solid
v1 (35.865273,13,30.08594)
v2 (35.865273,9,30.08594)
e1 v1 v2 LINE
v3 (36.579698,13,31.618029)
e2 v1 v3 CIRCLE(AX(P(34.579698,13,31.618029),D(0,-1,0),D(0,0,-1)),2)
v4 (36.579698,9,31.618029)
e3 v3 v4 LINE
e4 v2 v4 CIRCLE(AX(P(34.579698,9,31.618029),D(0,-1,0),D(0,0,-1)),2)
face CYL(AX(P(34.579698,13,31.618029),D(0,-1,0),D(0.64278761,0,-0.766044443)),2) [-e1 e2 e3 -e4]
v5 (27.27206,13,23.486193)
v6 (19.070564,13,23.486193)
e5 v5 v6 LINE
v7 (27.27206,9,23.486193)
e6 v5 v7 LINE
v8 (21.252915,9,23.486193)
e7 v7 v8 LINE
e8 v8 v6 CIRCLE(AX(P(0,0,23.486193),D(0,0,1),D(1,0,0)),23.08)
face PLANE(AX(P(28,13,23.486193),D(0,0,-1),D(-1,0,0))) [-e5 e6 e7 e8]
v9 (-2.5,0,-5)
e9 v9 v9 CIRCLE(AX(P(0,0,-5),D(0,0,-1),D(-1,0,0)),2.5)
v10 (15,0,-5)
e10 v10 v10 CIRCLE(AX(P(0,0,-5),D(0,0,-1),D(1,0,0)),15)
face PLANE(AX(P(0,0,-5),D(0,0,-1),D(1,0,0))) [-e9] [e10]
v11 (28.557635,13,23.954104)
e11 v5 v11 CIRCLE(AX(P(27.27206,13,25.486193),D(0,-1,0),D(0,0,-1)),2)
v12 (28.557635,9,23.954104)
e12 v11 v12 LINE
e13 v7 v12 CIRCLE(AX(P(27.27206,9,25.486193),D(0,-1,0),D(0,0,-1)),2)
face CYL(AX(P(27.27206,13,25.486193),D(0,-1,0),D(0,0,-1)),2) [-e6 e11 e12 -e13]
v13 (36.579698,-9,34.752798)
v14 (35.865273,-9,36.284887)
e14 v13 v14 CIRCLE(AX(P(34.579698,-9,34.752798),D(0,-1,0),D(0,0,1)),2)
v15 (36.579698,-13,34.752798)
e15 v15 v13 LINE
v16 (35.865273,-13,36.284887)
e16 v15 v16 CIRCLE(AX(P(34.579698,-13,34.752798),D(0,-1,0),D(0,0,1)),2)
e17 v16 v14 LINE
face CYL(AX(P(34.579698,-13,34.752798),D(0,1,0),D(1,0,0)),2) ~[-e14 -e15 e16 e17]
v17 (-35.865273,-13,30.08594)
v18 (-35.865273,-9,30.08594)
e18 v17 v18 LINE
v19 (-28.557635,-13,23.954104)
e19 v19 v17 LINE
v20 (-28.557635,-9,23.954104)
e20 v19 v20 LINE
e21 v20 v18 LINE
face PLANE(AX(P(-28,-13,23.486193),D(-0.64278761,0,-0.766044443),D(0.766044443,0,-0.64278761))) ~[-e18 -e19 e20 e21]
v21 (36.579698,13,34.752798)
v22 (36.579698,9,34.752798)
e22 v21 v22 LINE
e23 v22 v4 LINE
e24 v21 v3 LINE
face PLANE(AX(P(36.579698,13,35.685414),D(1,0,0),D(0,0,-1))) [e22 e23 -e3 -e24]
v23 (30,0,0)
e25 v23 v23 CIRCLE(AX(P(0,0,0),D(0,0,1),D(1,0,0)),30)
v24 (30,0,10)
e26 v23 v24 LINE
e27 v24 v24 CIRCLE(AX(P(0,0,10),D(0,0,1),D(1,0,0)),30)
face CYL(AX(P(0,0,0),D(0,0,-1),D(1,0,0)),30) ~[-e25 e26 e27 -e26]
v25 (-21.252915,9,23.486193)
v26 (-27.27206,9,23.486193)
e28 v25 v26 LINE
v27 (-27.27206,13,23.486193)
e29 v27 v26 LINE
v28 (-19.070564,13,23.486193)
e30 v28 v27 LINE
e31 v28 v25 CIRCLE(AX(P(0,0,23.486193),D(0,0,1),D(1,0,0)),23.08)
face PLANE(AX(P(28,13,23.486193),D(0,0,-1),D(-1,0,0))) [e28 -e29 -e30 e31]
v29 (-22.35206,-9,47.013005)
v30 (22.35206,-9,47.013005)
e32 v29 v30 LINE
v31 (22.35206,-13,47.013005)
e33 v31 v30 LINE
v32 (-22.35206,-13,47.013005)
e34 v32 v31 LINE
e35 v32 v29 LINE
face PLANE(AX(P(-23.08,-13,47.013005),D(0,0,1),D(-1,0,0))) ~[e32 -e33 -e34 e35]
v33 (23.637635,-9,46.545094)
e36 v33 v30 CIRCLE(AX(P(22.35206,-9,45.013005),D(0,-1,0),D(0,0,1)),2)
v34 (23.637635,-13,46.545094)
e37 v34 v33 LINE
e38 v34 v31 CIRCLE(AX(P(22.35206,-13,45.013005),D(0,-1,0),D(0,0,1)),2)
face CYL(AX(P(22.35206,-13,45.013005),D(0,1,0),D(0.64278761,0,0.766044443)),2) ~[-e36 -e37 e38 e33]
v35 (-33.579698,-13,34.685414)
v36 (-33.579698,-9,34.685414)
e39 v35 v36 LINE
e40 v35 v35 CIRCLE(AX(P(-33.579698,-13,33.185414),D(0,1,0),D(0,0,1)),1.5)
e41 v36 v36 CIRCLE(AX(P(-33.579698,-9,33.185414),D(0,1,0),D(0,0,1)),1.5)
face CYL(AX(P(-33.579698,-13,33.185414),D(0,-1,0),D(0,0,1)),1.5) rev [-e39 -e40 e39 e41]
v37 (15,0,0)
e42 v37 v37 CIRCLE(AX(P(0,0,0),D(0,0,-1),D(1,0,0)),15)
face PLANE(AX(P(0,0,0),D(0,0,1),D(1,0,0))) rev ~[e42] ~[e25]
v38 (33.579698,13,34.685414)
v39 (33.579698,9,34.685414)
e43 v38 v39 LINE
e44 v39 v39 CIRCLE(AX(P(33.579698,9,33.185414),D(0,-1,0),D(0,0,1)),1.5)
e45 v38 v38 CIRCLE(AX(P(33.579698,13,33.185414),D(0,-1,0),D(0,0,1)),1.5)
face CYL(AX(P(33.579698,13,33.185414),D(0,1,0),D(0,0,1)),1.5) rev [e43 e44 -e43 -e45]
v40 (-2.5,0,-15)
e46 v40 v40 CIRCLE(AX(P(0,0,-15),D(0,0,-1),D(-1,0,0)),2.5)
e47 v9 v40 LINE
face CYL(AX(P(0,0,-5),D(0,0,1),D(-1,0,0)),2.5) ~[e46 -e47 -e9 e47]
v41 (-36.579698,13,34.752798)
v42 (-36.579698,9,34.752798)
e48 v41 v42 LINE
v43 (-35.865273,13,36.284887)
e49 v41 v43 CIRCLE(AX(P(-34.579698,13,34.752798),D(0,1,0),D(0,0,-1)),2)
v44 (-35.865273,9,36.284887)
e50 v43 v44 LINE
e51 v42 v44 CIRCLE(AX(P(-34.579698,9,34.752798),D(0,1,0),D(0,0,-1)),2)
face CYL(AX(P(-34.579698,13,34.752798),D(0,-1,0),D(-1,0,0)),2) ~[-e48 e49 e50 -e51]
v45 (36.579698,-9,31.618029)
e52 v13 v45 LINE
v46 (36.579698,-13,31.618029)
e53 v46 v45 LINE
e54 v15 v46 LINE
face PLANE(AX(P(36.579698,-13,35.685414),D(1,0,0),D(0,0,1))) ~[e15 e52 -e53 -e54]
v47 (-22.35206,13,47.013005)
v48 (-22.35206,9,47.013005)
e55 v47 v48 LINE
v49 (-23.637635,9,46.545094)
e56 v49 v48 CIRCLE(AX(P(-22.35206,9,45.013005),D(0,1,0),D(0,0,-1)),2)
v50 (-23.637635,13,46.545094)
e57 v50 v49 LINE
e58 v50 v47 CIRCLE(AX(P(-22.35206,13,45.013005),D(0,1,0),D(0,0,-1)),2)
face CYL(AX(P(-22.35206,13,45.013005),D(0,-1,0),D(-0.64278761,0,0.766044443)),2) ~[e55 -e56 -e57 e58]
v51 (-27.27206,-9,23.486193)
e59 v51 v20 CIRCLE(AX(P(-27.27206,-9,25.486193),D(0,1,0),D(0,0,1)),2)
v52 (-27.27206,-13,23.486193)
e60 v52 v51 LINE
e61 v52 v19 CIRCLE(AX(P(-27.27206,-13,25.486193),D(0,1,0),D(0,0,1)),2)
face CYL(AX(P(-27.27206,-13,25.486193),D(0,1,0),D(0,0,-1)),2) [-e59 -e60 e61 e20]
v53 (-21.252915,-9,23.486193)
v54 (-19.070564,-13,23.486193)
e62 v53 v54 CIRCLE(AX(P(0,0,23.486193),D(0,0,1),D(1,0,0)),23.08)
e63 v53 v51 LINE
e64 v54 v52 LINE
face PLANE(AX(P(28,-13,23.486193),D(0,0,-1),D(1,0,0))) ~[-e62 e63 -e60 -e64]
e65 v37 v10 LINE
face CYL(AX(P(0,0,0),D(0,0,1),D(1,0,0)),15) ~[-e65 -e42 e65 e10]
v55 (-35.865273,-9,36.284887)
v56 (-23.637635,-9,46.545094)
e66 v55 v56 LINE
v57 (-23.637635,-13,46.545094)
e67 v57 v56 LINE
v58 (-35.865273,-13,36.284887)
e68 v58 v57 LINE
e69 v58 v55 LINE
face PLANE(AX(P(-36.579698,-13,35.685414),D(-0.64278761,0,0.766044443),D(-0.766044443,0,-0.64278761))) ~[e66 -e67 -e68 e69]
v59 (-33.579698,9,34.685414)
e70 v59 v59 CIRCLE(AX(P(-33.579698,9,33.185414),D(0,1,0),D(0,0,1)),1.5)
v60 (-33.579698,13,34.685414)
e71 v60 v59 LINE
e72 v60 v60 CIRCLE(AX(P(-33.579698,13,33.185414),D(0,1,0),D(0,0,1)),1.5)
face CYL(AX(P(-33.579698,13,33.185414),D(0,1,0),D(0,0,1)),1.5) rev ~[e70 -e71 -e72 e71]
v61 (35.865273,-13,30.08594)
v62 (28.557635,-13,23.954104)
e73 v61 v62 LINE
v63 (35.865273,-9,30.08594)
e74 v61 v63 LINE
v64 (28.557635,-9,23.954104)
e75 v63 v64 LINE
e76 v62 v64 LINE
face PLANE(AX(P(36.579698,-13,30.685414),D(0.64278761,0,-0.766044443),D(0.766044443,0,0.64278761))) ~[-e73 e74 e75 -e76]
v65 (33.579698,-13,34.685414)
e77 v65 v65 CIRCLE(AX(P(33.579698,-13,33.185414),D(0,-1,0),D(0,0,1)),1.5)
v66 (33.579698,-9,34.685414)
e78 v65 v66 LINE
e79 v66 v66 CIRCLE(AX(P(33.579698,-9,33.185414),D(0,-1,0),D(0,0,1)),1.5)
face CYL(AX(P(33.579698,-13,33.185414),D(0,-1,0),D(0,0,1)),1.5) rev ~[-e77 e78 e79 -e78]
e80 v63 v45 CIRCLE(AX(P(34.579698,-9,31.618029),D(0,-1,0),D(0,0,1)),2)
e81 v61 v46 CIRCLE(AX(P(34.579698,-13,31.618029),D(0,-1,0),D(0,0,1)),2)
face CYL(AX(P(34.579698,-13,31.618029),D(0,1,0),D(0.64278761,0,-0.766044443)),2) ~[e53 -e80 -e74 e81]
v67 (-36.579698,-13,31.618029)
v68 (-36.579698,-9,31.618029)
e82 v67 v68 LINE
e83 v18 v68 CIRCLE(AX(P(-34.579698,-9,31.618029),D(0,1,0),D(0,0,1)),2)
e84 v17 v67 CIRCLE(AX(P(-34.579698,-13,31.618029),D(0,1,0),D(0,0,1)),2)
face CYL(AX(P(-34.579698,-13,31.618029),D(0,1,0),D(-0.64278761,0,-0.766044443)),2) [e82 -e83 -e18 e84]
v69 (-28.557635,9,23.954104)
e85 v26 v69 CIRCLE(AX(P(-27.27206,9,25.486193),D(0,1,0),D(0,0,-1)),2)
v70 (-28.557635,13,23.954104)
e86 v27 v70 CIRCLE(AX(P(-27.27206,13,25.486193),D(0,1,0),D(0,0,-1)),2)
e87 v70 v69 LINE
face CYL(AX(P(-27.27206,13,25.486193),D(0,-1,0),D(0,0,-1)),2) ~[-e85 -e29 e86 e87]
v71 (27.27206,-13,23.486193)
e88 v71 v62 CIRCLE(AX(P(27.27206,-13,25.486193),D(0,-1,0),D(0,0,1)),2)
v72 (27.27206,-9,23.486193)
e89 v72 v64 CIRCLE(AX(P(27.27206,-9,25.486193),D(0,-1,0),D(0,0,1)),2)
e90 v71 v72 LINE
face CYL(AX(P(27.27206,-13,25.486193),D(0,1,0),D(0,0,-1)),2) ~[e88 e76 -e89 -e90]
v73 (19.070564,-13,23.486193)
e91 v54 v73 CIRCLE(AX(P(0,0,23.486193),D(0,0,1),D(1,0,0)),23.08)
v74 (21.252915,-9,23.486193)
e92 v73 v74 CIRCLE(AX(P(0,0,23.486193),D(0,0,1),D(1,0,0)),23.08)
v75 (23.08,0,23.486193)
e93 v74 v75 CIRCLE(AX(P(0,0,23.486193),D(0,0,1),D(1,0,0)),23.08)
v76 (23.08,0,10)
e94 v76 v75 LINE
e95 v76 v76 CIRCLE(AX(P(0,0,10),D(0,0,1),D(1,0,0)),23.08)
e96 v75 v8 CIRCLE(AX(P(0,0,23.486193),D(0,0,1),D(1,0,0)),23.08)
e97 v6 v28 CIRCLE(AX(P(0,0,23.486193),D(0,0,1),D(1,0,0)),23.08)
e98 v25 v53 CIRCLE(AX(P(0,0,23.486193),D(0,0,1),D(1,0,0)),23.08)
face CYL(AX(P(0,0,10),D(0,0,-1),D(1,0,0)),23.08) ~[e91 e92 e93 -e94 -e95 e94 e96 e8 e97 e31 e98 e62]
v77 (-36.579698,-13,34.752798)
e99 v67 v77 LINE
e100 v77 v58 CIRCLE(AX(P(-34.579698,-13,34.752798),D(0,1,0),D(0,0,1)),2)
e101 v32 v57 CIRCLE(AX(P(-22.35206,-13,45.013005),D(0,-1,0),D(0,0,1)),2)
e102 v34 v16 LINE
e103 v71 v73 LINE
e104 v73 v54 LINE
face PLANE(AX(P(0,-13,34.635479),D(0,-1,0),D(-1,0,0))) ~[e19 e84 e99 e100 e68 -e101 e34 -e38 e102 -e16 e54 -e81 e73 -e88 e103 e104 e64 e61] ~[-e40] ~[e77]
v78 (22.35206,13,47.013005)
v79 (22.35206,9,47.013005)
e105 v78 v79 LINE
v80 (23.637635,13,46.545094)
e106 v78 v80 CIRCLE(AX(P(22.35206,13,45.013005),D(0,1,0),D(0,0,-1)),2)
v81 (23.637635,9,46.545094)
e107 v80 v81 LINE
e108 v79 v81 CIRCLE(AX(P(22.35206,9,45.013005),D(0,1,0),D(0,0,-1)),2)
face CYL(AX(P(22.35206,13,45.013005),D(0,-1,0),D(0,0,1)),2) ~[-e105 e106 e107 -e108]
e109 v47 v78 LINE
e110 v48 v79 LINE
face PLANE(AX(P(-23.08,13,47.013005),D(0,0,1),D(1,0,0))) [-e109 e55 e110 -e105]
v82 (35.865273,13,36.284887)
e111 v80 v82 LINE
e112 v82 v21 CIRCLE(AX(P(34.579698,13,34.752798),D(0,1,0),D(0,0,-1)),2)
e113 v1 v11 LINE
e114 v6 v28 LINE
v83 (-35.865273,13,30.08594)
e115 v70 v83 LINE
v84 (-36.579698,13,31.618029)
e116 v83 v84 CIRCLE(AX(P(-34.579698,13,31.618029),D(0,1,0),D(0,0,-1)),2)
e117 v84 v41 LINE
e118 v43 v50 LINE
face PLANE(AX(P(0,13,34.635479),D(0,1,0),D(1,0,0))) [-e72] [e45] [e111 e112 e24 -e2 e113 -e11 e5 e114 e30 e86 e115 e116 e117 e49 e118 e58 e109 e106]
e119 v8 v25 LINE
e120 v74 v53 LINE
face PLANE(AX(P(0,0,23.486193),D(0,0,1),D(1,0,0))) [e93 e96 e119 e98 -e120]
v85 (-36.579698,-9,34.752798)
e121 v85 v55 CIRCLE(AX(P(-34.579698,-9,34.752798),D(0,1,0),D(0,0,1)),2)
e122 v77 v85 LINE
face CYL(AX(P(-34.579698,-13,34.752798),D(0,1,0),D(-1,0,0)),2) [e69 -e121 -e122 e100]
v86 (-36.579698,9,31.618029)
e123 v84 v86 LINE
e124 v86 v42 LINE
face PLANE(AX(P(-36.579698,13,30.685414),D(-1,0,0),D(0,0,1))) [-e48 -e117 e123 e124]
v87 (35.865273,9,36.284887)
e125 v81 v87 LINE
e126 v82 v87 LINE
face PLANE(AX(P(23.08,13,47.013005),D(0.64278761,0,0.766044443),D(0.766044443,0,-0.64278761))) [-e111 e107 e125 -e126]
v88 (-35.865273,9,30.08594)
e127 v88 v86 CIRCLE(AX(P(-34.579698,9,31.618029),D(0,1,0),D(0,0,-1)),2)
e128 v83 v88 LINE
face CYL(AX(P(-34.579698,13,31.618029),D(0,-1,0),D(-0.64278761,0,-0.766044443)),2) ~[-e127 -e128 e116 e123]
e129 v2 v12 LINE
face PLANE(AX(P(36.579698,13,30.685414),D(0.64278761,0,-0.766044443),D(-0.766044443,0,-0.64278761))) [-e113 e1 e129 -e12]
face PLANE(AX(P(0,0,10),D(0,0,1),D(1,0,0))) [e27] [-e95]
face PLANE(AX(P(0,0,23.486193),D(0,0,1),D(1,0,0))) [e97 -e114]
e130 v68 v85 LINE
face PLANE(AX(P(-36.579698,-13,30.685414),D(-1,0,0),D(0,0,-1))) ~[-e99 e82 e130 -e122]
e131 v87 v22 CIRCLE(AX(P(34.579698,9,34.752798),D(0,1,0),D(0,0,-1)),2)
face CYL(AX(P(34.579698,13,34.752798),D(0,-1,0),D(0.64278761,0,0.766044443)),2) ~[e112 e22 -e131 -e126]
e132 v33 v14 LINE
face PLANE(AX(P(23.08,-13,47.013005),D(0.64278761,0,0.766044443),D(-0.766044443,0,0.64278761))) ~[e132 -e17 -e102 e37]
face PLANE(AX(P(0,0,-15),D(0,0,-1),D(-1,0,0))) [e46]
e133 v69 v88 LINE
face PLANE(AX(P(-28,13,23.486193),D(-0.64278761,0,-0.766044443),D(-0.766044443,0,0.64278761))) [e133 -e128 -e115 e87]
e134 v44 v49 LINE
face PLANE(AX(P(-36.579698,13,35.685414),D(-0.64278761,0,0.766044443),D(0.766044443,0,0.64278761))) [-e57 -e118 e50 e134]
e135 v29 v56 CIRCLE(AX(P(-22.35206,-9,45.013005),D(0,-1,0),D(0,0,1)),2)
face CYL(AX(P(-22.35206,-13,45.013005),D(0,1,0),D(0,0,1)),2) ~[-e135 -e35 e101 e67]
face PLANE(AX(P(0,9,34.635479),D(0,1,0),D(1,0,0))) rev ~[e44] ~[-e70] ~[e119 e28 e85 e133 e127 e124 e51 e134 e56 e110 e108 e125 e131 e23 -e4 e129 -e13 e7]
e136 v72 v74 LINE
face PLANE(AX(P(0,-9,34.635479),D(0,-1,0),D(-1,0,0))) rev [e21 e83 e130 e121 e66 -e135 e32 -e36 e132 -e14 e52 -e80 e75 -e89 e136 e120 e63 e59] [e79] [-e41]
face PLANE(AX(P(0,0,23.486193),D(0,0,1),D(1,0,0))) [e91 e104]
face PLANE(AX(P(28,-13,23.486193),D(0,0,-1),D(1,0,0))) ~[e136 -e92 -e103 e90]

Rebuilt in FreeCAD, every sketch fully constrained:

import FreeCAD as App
import Part
import Sketcher
Q = App.Units.Quantity


def edges_at(feature, points):
    """Names of the edges that pass closest to the given points."""
    edges = feature.Shape.Edges
    near = lambda p: min(range(len(edges)), key=lambda i: edges[i].distToShape(Part.Vertex(*p))[0])
    return sorted({f"Edge{near(p) + 1}" for p in points})

doc = App.newDocument("Part")
body = doc.addObject("PartDesign::Body", "Body")

# Sketch on XY plane
sketch1 = body.newObject("Sketcher::SketchObject", "Sketch")
sketch1.AttachmentSupport = (doc.getObject("XY_Plane"), [""])
sketch1.MapMode = "FlatFace"
sketch1.addGeometry(Part.Circle(App.Vector(0, 0, 0), App.Vector(0, 0, 1), 30), False)
sketch1.addConstraint([
    Sketcher.Constraint("Coincident", 0, 3, -1, 1),
    Sketcher.Constraint("Diameter", 0, 60.0),
])
pad1 = body.newObject("PartDesign::Pad", "Pad")
pad1.Profile = sketch1
pad1.Length = 10

# Sketch on XY plane
sketch2 = body.newObject("Sketcher::SketchObject", "Sketch001")
sketch2.AttachmentSupport = (doc.getObject("XY_Plane"), [""])
sketch2.MapMode = "FlatFace"
sketch2.AttachmentOffset = App.Placement(App.Vector(0, 0, 10), App.Rotation())
sketch2.addGeometry(Part.Circle(App.Vector(0, 0, 0), App.Vector(0, 0, 1), 23), False)
sketch2.addConstraint([
    Sketcher.Constraint("Coincident", 0, 3, -1, 1),
    Sketcher.Constraint("Diameter", 0, 46.16),
])
pad2 = body.newObject("PartDesign::Pad", "Pad001")
pad2.Profile = sketch2
pad2.Length = 13.486193

# Sketch on XZ plane
sketch3 = body.newObject("Sketcher::SketchObject", "Sketch002")
sketch3.AttachmentSupport = (doc.getObject("XZ_Plane"), [""])
sketch3.MapMode = "FlatFace"
sketch3.AttachmentOffset = App.Placement(App.Vector(0, 0, -13), App.Rotation())
sketch3.addGeometry([
    Part.LineSegment(App.Vector(28, 23, 0), App.Vector(-28, 23, 0)),  # 0
    Part.LineSegment(App.Vector(-28, 23, 0), App.Vector(-37, 31, 0)),  # 1
    Part.LineSegment(App.Vector(-37, 31, 0), App.Vector(-37, 36, 0)),  # 2
    Part.LineSegment(App.Vector(-37, 36, 0), App.Vector(-23, 47, 0)),  # 3
    Part.LineSegment(App.Vector(-23, 47, 0), App.Vector(23, 47, 0)),  # 4
    Part.LineSegment(App.Vector(23, 47, 0), App.Vector(37, 36, 0)),  # 5
    Part.LineSegment(App.Vector(37, 36, 0), App.Vector(37, 31, 0)),  # 6
    Part.LineSegment(App.Vector(37, 31, 0), App.Vector(28, 23, 0)),  # 7
], False)
sketch3.addConstraint([
    Sketcher.Constraint("Coincident", 0, 2, 1, 1),
    Sketcher.Constraint("Coincident", 1, 2, 2, 1),
    Sketcher.Constraint("Coincident", 2, 2, 3, 1),
    Sketcher.Constraint("Coincident", 3, 2, 4, 1),
    Sketcher.Constraint("Coincident", 4, 2, 5, 1),
    Sketcher.Constraint("Coincident", 5, 2, 6, 1),
    Sketcher.Constraint("Coincident", 6, 2, 7, 1),
    Sketcher.Constraint("Coincident", 7, 2, 0, 1),
    Sketcher.Constraint("Horizontal", 0),
    Sketcher.Constraint("Vertical", 2),
    Sketcher.Constraint("Horizontal", 4),
    Sketcher.Constraint("Vertical", 6),
    Sketcher.Constraint("Symmetric", 2, 2, 5, 2, -2),
    Sketcher.Constraint("Parallel", 1, 5),
    Sketcher.Constraint("Parallel", 3, 7),
    Sketcher.Constraint("Horizontal", 1, 2, 6, 2),
    Sketcher.Constraint("Equal", 3, 5),
    Sketcher.Constraint("DistanceX", 0, 2, 0, 1, 56.0),
    Sketcher.Constraint("DistanceY", 2, 1, 2, 2, 5.0),
    Sketcher.Constraint("Angle", 1, Q("140 deg")),
    Sketcher.Constraint("Distance", 1, 11.2),
    Sketcher.Constraint("DistanceX", 4, 1, 4, 2, 46.16),
    Sketcher.Constraint("DistanceY", -1, 1, 0, 2, 23.486193),
])
pad3 = body.newObject("PartDesign::Pad", "Pad002")
pad3.Profile = sketch3
pad3.Length = 4
doc.recompute()

fillet = body.newObject("PartDesign::Fillet", "Fillet")
fillet.Base = (pad3, edges_at(pad3, [
    (-36.58, 11, 30.685),
    (-28, 11, 23.486),
    (28, 11, 23.486),
    (36.58, 11, 30.685),
    (36.58, 11, 35.685),
    (23.08, 11, 47.013),
    (-23.08, 11, 47.013),
    (-36.58, 11, 35.685),
]))
fillet.Radius = 2

# Sketch on XZ plane
sketch4 = body.newObject("Sketcher::SketchObject", "Sketch003")
sketch4.AttachmentSupport = (doc.getObject("XZ_Plane"), [""])
sketch4.MapMode = "FlatFace"
sketch4.AttachmentOffset = App.Placement(App.Vector(0, 0, -13), App.Rotation())
sketch4.addGeometry(Part.Circle(App.Vector(-33.6, 33.2, 0), App.Vector(0, 0, 1), 1.5), False)
sketch4.addConstraint([
    Sketcher.Constraint("Diameter", 0, 3.0),
    Sketcher.Constraint("DistanceX", 0, 3, -1, 1, 33.579698),
    Sketcher.Constraint("DistanceY", -1, 1, 0, 3, 33.185414),
])
pocket1 = body.newObject("PartDesign::Pocket", "Pocket")
pocket1.Profile = sketch4
pocket1.Length = 4
pocket1.Reversed = True
doc.recompute()

mirrored = body.newObject("PartDesign::Mirrored", "Mirrored")
mirrored.Originals = [pocket1]
mirrored.MirrorPlane = (doc.getObject("YZ_Plane"), [""])
body.Tip = mirrored
doc.recompute()

mirrored2 = body.newObject("PartDesign::Mirrored", "Mirrored001")
mirrored2.Originals = [pad3, pocket1]
mirrored2.MirrorPlane = (doc.getObject("XZ_Plane"), [""])
body.Tip = mirrored2

# Sketch on XZ plane
sketch5 = body.newObject("Sketcher::SketchObject", "Sketch004")
sketch5.AttachmentSupport = (doc.getObject("XZ_Plane"), [""])
sketch5.MapMode = "FlatFace"
sketch5.AttachmentOffset = App.Placement(App.Vector(0, 0, 13), App.Rotation())
sketch5.addGeometry(Part.Circle(App.Vector(33.6, 33.2, 0), App.Vector(0, 0, 1), 1.5), False)
sketch5.addConstraint([
    Sketcher.Constraint("Diameter", 0, 3.0),
    Sketcher.Constraint("DistanceX", -1, 1, 0, 3, 33.579698),
    Sketcher.Constraint("DistanceY", -1, 1, 0, 3, 33.185414),
])
pocket2 = body.newObject("PartDesign::Pocket", "Pocket001")
pocket2.Profile = sketch5
pocket2.Length = 4
doc.recompute()

fillet2 = body.newObject("PartDesign::Fillet", "Fillet001")
fillet2.Base = (pocket2, edges_at(pocket2, [
    (-36.58, -11, 30.685),
    (-28, -11, 23.486),
    (28, -11, 23.486),
    (36.58, -11, 30.685),
    (36.58, -11, 35.685),
    (23.08, -11, 47.013),
    (-23.08, -11, 47.013),
    (-36.58, -11, 35.685),
]))
fillet2.Radius = 2

# Sketch on XY plane
sketch6 = body.newObject("Sketcher::SketchObject", "Sketch005")
sketch6.AttachmentSupport = (doc.getObject("XY_Plane"), [""])
sketch6.MapMode = "FlatFace"
sketch6.addGeometry(Part.Circle(App.Vector(0, 0, 0), App.Vector(0, 0, 1), 15), False)
sketch6.addConstraint([
    Sketcher.Constraint("Coincident", 0, 3, -1, 1),
    Sketcher.Constraint("Diameter", 0, 30.0),
])
pad4 = body.newObject("PartDesign::Pad", "Pad003")
pad4.Profile = sketch6
pad4.Length = 5
pad4.Reversed = True

# Sketch on XY plane
sketch7 = body.newObject("Sketcher::SketchObject", "Sketch006")
sketch7.AttachmentSupport = (doc.getObject("XY_Plane"), [""])
sketch7.MapMode = "FlatFace"
sketch7.AttachmentOffset = App.Placement(App.Vector(0, 0, -5), App.Rotation())
sketch7.addGeometry(Part.Circle(App.Vector(0, 0, 0), App.Vector(0, 0, 1), 2.5), False)
sketch7.addConstraint([
    Sketcher.Constraint("Coincident", 0, 3, -1, 1),
    Sketcher.Constraint("Diameter", 0, 5.0),
])
pad5 = body.newObject("PartDesign::Pad", "Pad004")
pad5.Profile = sketch7
pad5.Length = 10
pad5.Reversed = True

doc.recompute()
